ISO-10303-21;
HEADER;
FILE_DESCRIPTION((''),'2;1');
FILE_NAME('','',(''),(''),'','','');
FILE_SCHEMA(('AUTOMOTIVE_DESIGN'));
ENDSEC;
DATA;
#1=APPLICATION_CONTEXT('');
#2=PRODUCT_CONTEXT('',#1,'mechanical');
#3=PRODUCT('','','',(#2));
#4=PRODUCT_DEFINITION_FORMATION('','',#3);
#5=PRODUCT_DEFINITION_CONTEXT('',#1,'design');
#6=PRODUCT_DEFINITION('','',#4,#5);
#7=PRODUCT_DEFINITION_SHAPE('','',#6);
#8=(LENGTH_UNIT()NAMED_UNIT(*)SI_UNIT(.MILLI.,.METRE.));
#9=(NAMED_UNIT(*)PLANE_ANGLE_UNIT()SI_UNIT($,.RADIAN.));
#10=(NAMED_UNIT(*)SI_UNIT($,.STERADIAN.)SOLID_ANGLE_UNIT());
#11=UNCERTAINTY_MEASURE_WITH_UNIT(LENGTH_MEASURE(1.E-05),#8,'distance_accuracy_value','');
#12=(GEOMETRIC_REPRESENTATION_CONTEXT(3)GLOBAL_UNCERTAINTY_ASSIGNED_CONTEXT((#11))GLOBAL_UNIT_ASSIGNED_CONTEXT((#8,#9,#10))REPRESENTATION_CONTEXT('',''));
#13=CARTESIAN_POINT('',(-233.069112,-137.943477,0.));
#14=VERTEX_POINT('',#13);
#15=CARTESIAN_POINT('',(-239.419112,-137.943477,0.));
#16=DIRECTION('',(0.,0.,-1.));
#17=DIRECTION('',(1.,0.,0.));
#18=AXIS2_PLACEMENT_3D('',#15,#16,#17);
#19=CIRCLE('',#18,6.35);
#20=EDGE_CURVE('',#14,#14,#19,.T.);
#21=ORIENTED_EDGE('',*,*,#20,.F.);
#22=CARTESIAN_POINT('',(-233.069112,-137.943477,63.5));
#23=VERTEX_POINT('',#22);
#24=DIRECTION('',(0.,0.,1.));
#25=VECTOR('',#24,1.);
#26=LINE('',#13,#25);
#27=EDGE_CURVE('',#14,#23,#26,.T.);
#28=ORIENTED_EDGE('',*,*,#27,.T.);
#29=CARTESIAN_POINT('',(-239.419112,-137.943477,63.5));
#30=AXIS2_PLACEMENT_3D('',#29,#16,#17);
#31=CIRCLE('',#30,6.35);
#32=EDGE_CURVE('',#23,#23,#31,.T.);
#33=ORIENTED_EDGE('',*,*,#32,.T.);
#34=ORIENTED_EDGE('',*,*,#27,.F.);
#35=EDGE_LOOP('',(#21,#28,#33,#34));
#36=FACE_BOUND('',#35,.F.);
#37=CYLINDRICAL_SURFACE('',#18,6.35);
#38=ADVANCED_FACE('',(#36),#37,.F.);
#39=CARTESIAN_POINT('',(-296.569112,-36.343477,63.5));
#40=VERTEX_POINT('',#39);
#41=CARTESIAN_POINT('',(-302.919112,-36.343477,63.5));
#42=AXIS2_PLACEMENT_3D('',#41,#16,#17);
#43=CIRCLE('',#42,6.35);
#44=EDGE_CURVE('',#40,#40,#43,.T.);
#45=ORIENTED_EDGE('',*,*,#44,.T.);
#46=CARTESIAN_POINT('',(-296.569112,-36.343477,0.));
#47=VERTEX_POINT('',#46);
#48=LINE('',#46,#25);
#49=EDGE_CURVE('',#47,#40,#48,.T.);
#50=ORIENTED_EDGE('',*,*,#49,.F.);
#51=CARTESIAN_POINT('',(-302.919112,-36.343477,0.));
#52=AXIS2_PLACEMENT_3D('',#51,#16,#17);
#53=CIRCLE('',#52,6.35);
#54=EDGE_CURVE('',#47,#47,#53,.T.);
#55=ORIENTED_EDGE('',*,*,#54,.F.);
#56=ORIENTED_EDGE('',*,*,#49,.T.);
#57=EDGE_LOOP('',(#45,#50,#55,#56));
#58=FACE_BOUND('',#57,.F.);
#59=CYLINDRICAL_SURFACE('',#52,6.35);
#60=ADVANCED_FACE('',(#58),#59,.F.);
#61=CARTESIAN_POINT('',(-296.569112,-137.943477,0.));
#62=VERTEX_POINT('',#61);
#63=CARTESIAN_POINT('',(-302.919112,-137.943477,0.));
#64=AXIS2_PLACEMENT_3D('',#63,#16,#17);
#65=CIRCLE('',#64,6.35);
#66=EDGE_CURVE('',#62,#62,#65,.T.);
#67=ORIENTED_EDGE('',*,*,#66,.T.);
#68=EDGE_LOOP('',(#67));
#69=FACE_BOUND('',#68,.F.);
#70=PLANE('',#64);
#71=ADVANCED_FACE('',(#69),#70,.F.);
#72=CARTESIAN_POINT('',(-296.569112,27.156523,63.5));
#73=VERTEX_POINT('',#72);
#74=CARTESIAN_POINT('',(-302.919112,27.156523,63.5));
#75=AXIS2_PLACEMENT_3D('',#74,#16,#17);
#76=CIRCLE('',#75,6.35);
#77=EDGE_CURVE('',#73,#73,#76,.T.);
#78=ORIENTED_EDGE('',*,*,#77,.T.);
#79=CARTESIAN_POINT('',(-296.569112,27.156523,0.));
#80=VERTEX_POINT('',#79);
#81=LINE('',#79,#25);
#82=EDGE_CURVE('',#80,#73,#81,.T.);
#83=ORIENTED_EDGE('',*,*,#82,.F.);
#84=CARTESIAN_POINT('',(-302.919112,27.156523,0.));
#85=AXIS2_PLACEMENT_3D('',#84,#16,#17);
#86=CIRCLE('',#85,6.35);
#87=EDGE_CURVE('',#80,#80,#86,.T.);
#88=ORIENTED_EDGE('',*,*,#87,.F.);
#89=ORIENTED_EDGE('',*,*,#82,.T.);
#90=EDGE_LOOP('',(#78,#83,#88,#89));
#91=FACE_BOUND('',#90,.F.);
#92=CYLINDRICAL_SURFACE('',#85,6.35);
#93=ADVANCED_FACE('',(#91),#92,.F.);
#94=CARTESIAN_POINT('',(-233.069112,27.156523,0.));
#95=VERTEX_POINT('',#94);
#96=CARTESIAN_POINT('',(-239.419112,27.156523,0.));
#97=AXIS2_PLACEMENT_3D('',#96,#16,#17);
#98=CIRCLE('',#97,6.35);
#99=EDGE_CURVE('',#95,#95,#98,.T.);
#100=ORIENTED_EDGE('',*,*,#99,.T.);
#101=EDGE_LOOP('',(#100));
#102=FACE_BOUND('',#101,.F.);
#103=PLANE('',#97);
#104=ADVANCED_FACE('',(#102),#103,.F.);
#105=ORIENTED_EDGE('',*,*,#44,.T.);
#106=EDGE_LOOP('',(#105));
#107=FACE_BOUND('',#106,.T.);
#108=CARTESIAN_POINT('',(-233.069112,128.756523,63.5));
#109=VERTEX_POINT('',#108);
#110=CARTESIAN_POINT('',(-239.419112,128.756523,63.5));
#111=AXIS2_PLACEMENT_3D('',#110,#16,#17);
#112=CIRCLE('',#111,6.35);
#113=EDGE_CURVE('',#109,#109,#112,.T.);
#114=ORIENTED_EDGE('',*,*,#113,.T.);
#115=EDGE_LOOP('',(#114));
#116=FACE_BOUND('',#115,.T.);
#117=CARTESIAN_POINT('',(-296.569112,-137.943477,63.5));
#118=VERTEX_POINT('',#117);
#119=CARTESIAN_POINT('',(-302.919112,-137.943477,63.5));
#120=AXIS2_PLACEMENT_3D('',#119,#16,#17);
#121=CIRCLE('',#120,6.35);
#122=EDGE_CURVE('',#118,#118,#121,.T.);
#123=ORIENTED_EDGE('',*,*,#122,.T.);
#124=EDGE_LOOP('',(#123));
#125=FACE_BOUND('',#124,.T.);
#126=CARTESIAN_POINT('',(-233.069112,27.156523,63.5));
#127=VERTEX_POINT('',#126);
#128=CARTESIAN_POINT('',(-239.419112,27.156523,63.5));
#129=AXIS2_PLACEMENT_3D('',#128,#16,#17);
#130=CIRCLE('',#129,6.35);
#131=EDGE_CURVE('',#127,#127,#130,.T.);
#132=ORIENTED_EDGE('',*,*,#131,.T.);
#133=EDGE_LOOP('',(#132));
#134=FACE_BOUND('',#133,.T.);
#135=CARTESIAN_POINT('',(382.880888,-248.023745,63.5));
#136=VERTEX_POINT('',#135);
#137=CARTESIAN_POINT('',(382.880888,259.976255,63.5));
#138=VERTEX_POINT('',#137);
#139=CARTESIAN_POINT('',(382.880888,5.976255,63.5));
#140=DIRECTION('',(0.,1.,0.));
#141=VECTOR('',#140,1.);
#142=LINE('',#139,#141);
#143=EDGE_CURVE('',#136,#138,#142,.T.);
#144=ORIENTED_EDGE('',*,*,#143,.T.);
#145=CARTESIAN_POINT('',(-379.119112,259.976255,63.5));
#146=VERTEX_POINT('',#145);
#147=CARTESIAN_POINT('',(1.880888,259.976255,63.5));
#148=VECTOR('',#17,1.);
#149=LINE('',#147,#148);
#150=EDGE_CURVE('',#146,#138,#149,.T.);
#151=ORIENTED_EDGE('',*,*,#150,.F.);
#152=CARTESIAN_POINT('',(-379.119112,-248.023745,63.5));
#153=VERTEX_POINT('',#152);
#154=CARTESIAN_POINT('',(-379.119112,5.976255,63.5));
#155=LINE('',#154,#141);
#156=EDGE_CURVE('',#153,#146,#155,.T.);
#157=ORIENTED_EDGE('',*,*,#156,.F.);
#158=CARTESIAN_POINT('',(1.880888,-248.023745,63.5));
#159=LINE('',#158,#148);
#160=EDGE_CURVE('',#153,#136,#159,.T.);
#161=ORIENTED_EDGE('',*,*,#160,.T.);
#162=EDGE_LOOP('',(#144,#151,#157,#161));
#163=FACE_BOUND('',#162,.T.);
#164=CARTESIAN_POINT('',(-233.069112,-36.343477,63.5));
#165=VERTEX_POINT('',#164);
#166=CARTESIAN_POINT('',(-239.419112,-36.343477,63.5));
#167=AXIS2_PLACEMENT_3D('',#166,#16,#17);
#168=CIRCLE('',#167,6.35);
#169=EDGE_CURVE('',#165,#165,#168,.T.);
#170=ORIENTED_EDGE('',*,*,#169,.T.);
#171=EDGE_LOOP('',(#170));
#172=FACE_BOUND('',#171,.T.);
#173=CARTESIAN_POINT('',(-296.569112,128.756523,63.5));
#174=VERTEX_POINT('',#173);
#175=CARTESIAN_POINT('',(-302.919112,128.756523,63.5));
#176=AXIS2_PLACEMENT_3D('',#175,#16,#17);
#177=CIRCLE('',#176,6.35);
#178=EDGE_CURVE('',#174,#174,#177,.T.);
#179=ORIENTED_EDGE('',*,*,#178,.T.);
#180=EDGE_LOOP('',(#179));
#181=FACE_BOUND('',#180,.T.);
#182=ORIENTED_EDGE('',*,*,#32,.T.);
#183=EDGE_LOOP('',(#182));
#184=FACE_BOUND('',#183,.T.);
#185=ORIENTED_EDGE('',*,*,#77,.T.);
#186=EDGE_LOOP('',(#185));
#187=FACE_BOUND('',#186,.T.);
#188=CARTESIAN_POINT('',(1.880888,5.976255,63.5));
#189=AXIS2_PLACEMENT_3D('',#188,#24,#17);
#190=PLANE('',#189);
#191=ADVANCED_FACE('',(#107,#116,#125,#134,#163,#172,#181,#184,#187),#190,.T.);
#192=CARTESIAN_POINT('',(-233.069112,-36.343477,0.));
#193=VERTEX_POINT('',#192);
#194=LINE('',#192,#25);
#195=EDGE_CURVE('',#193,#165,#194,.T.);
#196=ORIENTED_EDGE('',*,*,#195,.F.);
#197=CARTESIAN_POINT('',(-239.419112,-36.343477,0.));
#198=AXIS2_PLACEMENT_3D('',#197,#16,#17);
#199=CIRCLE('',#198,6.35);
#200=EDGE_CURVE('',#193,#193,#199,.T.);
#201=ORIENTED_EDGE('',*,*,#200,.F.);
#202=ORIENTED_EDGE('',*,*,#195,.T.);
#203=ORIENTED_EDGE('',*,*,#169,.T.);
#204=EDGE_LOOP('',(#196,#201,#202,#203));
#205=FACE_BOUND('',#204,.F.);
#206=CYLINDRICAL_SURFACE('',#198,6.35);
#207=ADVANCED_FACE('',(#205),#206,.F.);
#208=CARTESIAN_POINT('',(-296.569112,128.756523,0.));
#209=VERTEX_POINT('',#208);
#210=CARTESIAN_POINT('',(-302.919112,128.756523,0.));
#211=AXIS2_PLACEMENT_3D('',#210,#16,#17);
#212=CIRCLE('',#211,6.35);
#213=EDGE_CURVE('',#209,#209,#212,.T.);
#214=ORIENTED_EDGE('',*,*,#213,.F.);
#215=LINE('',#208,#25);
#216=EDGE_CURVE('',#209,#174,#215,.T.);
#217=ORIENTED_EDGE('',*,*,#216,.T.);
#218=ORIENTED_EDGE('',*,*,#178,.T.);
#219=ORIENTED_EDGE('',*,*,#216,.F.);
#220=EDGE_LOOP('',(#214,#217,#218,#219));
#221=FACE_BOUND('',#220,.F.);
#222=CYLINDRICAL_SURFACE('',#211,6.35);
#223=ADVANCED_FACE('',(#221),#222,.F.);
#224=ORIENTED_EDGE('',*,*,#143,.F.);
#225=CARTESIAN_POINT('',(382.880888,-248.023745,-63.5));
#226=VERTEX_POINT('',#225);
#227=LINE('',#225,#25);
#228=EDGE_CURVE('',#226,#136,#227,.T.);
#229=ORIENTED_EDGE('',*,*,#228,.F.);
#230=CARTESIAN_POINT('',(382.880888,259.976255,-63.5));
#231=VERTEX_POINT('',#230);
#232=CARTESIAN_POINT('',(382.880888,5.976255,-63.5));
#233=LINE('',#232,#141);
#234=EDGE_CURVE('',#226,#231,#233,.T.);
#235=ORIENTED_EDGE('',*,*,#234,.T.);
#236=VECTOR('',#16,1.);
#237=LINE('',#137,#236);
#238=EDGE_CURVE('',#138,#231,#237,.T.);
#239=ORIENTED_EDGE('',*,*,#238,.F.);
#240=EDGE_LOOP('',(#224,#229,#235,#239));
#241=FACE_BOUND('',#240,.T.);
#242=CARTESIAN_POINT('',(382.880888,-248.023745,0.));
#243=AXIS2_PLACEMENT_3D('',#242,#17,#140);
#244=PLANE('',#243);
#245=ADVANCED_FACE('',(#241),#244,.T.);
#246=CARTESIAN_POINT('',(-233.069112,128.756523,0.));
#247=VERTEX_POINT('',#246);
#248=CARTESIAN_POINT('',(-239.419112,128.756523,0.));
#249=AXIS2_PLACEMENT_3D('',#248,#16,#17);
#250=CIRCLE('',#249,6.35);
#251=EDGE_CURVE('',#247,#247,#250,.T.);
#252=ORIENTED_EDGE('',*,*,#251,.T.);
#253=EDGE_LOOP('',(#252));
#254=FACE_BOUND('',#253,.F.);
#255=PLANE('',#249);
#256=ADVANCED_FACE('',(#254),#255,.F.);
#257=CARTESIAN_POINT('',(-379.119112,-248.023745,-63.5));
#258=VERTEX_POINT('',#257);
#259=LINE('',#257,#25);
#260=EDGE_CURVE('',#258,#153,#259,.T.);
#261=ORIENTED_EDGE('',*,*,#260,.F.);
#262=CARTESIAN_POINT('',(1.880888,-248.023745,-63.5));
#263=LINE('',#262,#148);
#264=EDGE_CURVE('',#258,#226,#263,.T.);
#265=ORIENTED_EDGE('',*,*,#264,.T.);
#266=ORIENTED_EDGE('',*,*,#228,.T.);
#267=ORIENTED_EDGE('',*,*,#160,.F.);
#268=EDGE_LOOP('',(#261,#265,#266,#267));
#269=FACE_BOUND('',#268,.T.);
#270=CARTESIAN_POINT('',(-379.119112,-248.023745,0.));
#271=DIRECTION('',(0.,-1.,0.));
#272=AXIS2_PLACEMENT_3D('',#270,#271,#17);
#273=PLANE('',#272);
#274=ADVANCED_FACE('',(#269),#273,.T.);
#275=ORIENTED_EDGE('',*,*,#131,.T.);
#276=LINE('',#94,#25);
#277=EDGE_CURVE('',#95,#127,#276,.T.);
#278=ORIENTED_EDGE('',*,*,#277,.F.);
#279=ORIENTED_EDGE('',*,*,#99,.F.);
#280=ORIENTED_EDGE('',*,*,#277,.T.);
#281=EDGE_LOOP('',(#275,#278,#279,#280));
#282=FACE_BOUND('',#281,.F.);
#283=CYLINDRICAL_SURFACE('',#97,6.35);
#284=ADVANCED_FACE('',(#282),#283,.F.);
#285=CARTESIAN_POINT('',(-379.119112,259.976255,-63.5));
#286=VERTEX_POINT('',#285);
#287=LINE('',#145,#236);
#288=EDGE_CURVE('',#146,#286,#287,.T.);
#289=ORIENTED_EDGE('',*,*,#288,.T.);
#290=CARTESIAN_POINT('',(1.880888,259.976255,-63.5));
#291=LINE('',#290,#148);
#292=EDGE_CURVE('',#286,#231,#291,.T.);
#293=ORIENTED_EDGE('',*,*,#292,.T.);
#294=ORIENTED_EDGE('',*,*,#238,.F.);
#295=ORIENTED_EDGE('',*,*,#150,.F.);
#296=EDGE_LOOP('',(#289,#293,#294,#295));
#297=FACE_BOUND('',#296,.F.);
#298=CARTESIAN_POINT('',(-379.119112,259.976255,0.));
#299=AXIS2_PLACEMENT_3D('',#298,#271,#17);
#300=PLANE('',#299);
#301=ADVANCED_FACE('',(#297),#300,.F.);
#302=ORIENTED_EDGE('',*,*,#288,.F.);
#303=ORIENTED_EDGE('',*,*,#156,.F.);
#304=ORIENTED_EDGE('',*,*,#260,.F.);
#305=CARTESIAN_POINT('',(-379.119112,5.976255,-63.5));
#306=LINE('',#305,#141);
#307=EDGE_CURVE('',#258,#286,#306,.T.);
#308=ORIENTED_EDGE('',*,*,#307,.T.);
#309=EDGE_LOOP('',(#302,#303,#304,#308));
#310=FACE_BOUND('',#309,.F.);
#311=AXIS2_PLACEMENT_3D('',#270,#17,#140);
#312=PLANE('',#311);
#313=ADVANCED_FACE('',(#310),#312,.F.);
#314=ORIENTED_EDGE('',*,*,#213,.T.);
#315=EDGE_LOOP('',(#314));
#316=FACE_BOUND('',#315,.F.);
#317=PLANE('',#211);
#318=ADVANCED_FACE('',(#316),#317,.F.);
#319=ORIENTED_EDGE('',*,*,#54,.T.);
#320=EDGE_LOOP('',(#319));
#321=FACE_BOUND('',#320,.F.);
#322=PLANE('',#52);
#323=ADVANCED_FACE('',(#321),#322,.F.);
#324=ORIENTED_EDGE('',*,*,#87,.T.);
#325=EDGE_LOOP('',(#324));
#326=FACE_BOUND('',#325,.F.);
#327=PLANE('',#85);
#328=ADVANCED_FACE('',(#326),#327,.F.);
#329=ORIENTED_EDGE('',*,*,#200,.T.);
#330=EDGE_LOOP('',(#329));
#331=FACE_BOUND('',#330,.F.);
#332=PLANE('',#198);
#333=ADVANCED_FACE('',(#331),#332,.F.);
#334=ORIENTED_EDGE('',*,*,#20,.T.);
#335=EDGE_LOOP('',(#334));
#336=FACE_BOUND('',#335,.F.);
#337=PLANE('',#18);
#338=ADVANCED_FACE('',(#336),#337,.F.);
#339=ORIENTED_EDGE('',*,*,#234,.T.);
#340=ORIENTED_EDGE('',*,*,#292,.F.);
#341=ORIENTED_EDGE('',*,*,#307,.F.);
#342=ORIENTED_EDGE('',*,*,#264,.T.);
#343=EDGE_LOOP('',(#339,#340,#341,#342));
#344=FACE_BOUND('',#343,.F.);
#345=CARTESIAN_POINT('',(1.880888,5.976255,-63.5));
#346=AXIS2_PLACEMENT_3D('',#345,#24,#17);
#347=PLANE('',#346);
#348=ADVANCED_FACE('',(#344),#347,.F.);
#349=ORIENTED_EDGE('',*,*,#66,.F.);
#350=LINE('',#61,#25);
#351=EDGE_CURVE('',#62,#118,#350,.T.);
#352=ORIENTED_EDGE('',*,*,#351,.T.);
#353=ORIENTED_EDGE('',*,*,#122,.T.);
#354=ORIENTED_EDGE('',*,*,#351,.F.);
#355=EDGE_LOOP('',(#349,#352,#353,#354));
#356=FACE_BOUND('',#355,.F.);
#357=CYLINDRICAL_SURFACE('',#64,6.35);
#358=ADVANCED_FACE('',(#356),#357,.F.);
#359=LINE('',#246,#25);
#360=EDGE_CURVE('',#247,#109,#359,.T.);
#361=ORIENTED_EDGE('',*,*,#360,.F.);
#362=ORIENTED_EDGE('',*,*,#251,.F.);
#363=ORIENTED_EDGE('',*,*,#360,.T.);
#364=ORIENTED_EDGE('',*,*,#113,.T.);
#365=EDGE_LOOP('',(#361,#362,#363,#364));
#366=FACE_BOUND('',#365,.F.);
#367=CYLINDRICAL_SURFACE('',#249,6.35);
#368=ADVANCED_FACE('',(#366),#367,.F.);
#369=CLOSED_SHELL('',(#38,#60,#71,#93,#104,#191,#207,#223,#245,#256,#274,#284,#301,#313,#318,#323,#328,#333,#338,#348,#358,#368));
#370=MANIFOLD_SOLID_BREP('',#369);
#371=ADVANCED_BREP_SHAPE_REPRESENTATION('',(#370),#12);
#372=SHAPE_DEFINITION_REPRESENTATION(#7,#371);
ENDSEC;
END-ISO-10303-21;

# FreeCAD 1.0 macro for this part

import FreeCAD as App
import Part
import Sketcher
Q = App.Units.Quantity


def add_polygon(sketch, points):
    """Adds a closed chain of lines whose ends are joined by coincident constraints."""
    first, n = sketch.GeometryCount, len(points)
    for a, b in zip(points, points[1:] + points[:1]):
        sketch.addGeometry(Part.LineSegment(App.Vector(*a, 0), App.Vector(*b, 0)), False)
    for i in range(n):
        sketch.addConstraint(Sketcher.Constraint("Coincident", first + i, 2, first + (i + 1) % n, 1))

doc = App.newDocument("Part")
body = doc.addObject("PartDesign::Body", "Body")

sketch1 = body.newObject("Sketcher::SketchObject", "Sketch")
sketch1.AttachmentSupport = (doc.getObject("XY_Plane"), [""])
sketch1.MapMode = "FlatFace"
add_polygon(sketch1, [(-379, 260), (-379, -248), (383, -248), (383, 260)])
sketch1.addConstraint(Sketcher.Constraint("Vertical", 0))
sketch1.addConstraint(Sketcher.Constraint("Horizontal", 1))
sketch1.addConstraint(Sketcher.Constraint("Vertical", 2))
sketch1.addConstraint(Sketcher.Constraint("Horizontal", 3))
sketch1.addConstraint(Sketcher.Constraint("DistanceX", 1, 1, 1, 2, Q("30 in")))
sketch1.addConstraint(Sketcher.Constraint("DistanceY", 0, 2, 0, 1, Q("20 in")))
sketch1.addConstraint(Sketcher.Constraint("DistanceX", 0, 2, -1, 1, Q("379.119112 mm")))
sketch1.addConstraint(Sketcher.Constraint("DistanceY", 0, 2, -1, 1, Q("248.023745 mm")))
pad1 = body.newObject("PartDesign::Pad", "Pad")
pad1.Profile = sketch1
pad1.Length = Q("5 in")
pad1.Midplane = True

sketch2 = body.newObject("Sketcher::SketchObject", "Sketch001")
sketch2.AttachmentSupport = (doc.getObject("XY_Plane"), [""])
sketch2.MapMode = "FlatFace"
sketch2.addGeometry(Part.Circle(App.Vector(-239, -138, 0), App.Vector(0, 0, 1), 6), False)
sketch2.addGeometry(Part.Circle(App.Vector(-303, 129, 0), App.Vector(0, 0, 1), 6), False)
sketch2.addGeometry(Part.Circle(App.Vector(-239, 129, 0), App.Vector(0, 0, 1), 6), False)
sketch2.addGeometry(Part.Circle(App.Vector(-303, 27, 0), App.Vector(0, 0, 1), 6), False)
sketch2.addGeometry(Part.Circle(App.Vector(-239, 27, 0), App.Vector(0, 0, 1), 6), False)
sketch2.addGeometry(Part.Circle(App.Vector(-303, -36, 0), App.Vector(0, 0, 1), 6), False)
sketch2.addGeometry(Part.Circle(App.Vector(-239, -36, 0), App.Vector(0, 0, 1), 6), False)
sketch2.addGeometry(Part.Circle(App.Vector(-303, -138, 0), App.Vector(0, 0, 1), 6), False)
sketch2.addConstraint(Sketcher.Constraint("Equal", 0, 1))
sketch2.addConstraint(Sketcher.Constraint("Equal", 1, 2))
sketch2.addConstraint(Sketcher.Constraint("Equal", 2, 3))
sketch2.addConstraint(Sketcher.Constraint("Equal", 3, 4))
sketch2.addConstraint(Sketcher.Constraint("Equal", 4, 5))
sketch2.addConstraint(Sketcher.Constraint("Equal", 5, 6))
sketch2.addConstraint(Sketcher.Constraint("Equal", 6, 7))
sketch2.addConstraint(Sketcher.Constraint("Horizontal", 1, 3, 2, 3))
sketch2.addConstraint(Sketcher.Constraint("Horizontal", 3, 3, 4, 3))
sketch2.addConstraint(Sketcher.Constraint("Horizontal", 5, 3, 6, 3))
sketch2.addConstraint(Sketcher.Constraint("Horizontal", 0, 3, 7, 3))
sketch2.addConstraint(Sketcher.Constraint("Vertical", 0, 3, 2, 3))
sketch2.addConstraint(Sketcher.Constraint("Vertical", 1, 3, 3, 3))
sketch2.addConstraint(Sketcher.Constraint("Vertical", 2, 3, 4, 3))
sketch2.addConstraint(Sketcher.Constraint("Vertical", 3, 3, 5, 3))
sketch2.addConstraint(Sketcher.Constraint("Vertical", 4, 3, 6, 3))
sketch2.addConstraint(Sketcher.Constraint("Vertical", 5, 3, 7, 3))
sketch2.addConstraint(Sketcher.Constraint("Diameter", 0, Q("0.5 in")))
sketch2.addConstraint(Sketcher.Constraint("DistanceY", 3, 3, 1, 3, Q("4 in")))
sketch2.addConstraint(Sketcher.Constraint("DistanceY", 0, 3, 5, 3, Q("4 in")))
sketch2.addConstraint(Sketcher.Constraint("DistanceX", 1, 3, 0, 3, Q("2.5 in")))
sketch2.addConstraint(Sketcher.Constraint("DistanceY", 0, 3, 1, 3, Q("10.5 in")))
sketch2.addConstraint(Sketcher.Constraint("DistanceX", 0, 3, -1, 1, Q("239.419112 mm")))
sketch2.addConstraint(Sketcher.Constraint("DistanceY", 0, 3, -1, 1, Q("137.943477 mm")))
pocket1 = body.newObject("PartDesign::Pocket", "Pocket")
pocket1.Profile = sketch2
pocket1.Type = "ThroughAll"
pocket1.Reversed = True

doc.recompute()
